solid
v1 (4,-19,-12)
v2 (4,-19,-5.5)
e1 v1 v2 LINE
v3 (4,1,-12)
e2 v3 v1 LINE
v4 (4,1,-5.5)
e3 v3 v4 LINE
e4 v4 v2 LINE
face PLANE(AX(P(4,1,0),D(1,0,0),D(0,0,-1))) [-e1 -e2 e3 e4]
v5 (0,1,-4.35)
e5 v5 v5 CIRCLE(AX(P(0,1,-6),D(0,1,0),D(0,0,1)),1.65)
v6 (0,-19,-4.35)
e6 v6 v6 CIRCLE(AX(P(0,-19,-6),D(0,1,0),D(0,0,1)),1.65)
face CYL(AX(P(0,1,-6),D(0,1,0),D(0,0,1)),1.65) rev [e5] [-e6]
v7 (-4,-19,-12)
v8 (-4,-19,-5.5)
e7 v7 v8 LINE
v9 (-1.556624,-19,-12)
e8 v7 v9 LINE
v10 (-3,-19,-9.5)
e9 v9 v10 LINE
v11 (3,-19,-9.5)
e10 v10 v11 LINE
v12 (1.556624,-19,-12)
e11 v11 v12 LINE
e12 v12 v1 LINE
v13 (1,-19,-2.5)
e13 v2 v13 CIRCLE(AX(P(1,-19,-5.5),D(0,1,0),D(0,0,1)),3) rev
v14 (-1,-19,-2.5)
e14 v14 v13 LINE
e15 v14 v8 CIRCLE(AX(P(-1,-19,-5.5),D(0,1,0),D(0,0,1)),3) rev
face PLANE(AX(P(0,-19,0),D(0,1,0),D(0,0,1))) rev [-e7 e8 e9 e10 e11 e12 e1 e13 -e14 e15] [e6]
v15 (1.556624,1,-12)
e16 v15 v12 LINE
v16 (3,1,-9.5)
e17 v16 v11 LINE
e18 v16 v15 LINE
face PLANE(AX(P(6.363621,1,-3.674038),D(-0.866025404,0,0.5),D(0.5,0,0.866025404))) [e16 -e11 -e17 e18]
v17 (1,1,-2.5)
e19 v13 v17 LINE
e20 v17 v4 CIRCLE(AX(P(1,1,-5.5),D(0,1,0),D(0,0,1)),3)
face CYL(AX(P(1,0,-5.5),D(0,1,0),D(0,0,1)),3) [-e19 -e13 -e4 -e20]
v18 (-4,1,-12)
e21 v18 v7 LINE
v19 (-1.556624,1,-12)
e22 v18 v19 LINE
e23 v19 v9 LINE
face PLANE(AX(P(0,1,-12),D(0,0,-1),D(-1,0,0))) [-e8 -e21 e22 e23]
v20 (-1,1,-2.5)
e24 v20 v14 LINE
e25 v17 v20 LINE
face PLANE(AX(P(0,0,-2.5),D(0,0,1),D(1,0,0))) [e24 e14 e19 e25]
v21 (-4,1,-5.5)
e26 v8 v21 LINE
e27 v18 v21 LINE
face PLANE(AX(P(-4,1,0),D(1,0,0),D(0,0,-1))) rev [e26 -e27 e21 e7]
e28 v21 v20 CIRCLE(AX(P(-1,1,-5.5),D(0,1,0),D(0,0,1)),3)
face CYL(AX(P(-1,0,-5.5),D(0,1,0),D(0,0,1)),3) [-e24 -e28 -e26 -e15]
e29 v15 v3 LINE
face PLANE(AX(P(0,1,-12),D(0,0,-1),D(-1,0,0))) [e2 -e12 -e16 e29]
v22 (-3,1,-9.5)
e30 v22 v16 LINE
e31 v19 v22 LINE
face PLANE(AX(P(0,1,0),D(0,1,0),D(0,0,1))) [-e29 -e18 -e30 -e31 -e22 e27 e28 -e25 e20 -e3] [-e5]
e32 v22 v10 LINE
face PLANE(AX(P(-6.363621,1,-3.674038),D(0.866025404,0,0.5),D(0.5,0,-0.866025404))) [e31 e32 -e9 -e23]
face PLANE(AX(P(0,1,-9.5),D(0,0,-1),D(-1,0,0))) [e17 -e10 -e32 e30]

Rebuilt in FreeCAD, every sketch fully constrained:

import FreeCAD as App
import Part
import Sketcher
Q = App.Units.Quantity


def edges_at(feature, points):
    """Names of the edges that pass closest to the given points."""
    edges = feature.Shape.Edges
    near = lambda p: min(range(len(edges)), key=lambda i: edges[i].distToShape(Part.Vertex(*p))[0])
    return sorted({f"Edge{near(p) + 1}" for p in points})


def add_polygon(sketch, points):
    """Adds a closed chain of lines whose ends are joined by coincident constraints."""
    first, n = sketch.GeometryCount, len(points)
    for a, b in zip(points, points[1:] + points[:1]):
        sketch.addGeometry(Part.LineSegment(App.Vector(*a, 0), App.Vector(*b, 0)), False)
    for i in range(n):
        sketch.addConstraint(Sketcher.Constraint("Coincident", first + i, 2, first + (i + 1) % n, 1))

doc = App.newDocument("Part")
params = doc.addObject("Spreadsheet::Sheet", "Params")
for row, (alias, value) in enumerate([
    ("sketch1_width", "8 mm"),
    ("sketch1_width2", "6 mm"),
    ("sketch1_height", "3.5 mm"),
    ("pad1_length", "20 mm"),
    ("sketch2_width", "8 mm"),
    ("sketch2_height", "20 mm"),
    ("pad2_length", "6 mm"),
    ("sketch3_diameter", "3.3 mm"),
    ("hole_diameter", "3.3 mm"),
    ("hole_depth", "20 mm"),
    ("fillet_radius", "3 mm"),
], start=1):
    params.set(f"A{row}", alias)
    params.set(f"B{row}", "=" + value)
    params.setAlias(f"B{row}", alias)

body = doc.addObject("PartDesign::Body", "Body")

# Sketch on XZ plane
sketch1 = body.newObject("Sketcher::SketchObject", "Sketch")
sketch1.AttachmentSupport = (doc.getObject("XZ_Plane"), [""])
sketch1.MapMode = "FlatFace"
sketch1.AttachmentOffset = App.Placement(App.Vector(0, 0, 19), App.Rotation())
add_polygon(sketch1, [(-4, -12), (-4, -8.5), (4, -8.5), (4, -12), (1.6, -12), (3, -9.5), (-3, -9.5), (-1.6, -12)])  # lines 0-7
sketch1.addConstraint([
    Sketcher.Constraint("Vertical", 0),
    Sketcher.Constraint("Horizontal", 1),
    Sketcher.Constraint("Vertical", 2),
    Sketcher.Constraint("Horizontal", 3),
    Sketcher.Constraint("Horizontal", 5),
    Sketcher.Constraint("Horizontal", 7),
    Sketcher.Constraint("Symmetric", 3, 2, 6, 2, -2),
    Sketcher.Constraint("Equal", 3, 7),
    Sketcher.Constraint("Equal", 4, 6),
    Sketcher.Constraint("DistanceX", 1, 1, 1, 2, Q("8 mm")),
    Sketcher.Constraint("DistanceX", 5, 2, 5, 1, Q("6 mm")),
    Sketcher.Constraint("Angle", 4, Q("60 deg")),
    Sketcher.Constraint("DistanceY", 0, 1, 0, 2, Q("3.5 mm")),
    Sketcher.Constraint("DistanceY", 2, 2, -1, 1, Q("12 mm")),
    Sketcher.Constraint("DistanceY", 4, 2, 1, 2, Q("1 mm")),
])
sketch1.setExpression("Constraints[17]", "Params.sketch1_width")
sketch1.setExpression("Constraints[18]", "Params.sketch1_width2")
sketch1.setExpression("Constraints[20]", "Params.sketch1_height")
pad1 = body.newObject("PartDesign::Pad", "Pad")
pad1.Profile = sketch1
pad1.setExpression("Length", "Params.pad1_length")
pad1.Reversed = True

# Sketch on XY plane
sketch2 = body.newObject("Sketcher::SketchObject", "Sketch001")
sketch2.AttachmentSupport = (doc.getObject("XY_Plane"), [""])
sketch2.MapMode = "FlatFace"
sketch2.AttachmentOffset = App.Placement(App.Vector(0, 0, -8.5), App.Rotation())
add_polygon(sketch2, [(-4, 1), (-4, -19), (4, -19), (4, 1)])  # lines 0-3
sketch2.addConstraint([
    Sketcher.Constraint("Vertical", 0),
    Sketcher.Constraint("Horizontal", 1),
    Sketcher.Constraint("Vertical", 2),
    Sketcher.Constraint("Horizontal", 3),
    Sketcher.Constraint("DistanceX", 1, 1, 1, 2, Q("8 mm")),
    Sketcher.Constraint("DistanceY", 0, 2, 0, 1, Q("20 mm")),
    Sketcher.Constraint("DistanceX", 0, 2, -1, 1, Q("4 mm")),
    Sketcher.Constraint("DistanceY", 0, 2, -1, 1, Q("19 mm")),
])
sketch2.setExpression("Constraints[8]", "Params.sketch2_width")
sketch2.setExpression("Constraints[9]", "Params.sketch2_height")
pad2 = body.newObject("PartDesign::Pad", "Pad001")
pad2.Profile = sketch2
pad2.setExpression("Length", "Params.pad2_length")

# Sketch on XZ plane
sketch3 = body.newObject("Sketcher::SketchObject", "Sketch002")
sketch3.AttachmentSupport = (doc.getObject("XZ_Plane"), [""])
sketch3.MapMode = "FlatFace"
sketch3.AttachmentOffset = App.Placement(App.Vector(0, 0, -1), App.Rotation())
sketch3.addGeometry(Part.Circle(App.Vector(0, -6, 0), App.Vector(0, 0, 1), 1.6), False)
sketch3.addConstraint([
    Sketcher.Constraint("PointOnObject", 0, 3, -2),
    Sketcher.Constraint("Diameter", 0, Q("3.3 mm")),
    Sketcher.Constraint("DistanceY", 0, 3, -1, 1, Q("6 mm")),
])
sketch3.setExpression("Constraints[1]", "Params.sketch3_diameter")
doc.recompute()
hole = body.newObject("PartDesign::Hole", "Hole")
hole.Profile = sketch3
hole.ThreadType = "None"
hole.setExpression("Diameter", "Params.hole_diameter")
hole.DepthType = "Dimension"
hole.setExpression("Depth", "Params.hole_depth")
hole.DrillPoint = "Flat"
hole.Reversed = True
doc.recompute()

fillet = body.newObject("PartDesign::Fillet", "Fillet")
fillet.Base = (hole, edges_at(hole, [(-4, -9, -2.5), (4, -9, -2.5)]))
fillet.setExpression("Radius", "Params.fillet_radius")

doc.recompute()
